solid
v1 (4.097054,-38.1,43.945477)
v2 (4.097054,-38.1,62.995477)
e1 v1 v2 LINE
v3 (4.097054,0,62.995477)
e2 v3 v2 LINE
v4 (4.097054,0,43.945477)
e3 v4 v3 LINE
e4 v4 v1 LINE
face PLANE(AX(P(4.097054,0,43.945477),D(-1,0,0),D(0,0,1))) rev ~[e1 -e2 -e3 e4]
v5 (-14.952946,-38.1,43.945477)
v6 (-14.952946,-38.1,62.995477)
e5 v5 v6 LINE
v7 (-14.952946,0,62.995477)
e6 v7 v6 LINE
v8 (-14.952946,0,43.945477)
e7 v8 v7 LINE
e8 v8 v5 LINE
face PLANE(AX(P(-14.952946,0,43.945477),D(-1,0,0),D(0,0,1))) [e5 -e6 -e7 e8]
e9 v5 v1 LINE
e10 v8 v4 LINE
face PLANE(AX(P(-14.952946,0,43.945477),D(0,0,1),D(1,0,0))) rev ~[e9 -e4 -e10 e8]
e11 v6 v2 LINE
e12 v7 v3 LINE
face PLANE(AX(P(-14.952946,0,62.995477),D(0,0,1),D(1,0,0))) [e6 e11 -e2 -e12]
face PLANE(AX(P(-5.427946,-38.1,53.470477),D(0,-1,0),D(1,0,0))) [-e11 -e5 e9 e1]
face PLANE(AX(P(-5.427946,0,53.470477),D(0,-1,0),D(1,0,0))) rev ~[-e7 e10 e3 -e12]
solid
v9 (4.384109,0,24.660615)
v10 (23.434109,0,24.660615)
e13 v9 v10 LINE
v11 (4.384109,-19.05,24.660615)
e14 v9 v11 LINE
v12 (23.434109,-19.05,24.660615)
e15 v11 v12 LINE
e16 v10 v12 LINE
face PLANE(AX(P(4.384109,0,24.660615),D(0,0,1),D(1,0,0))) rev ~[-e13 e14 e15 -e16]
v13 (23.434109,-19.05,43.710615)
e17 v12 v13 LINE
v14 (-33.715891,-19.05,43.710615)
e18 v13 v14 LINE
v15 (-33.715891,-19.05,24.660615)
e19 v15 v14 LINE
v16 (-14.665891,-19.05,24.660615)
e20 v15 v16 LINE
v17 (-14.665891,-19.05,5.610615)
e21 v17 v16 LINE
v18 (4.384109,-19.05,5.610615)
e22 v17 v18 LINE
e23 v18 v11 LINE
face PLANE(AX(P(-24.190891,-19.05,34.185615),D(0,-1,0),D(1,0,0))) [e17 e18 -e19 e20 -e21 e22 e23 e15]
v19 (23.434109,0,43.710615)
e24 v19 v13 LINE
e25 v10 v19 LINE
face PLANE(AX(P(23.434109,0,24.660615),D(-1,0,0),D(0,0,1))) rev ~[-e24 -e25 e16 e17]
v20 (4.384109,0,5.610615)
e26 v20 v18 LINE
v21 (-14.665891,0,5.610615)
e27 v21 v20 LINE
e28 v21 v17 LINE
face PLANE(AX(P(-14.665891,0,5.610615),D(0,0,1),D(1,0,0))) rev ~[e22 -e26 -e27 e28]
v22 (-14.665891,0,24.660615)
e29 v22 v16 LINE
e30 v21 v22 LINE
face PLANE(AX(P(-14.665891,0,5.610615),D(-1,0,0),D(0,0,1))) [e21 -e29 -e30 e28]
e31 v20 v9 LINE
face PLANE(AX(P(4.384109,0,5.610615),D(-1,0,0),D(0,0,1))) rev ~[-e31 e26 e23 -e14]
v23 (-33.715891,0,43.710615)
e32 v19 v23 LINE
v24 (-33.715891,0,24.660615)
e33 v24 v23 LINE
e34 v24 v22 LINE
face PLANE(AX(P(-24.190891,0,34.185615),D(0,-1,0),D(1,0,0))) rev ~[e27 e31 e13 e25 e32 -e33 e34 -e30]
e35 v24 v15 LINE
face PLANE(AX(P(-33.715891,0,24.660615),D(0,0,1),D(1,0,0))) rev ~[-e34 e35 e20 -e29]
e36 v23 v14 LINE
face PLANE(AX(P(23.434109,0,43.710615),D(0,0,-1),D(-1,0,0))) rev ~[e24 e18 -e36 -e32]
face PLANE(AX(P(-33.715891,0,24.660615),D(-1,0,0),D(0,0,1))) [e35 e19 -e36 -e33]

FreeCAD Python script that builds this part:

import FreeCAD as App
import Part
import Sketcher

V = App.Vector
Q = App.Units.Quantity

doc = App.newDocument("Part")
body = doc.addObject("PartDesign::Body", "Body")

sketch1 = body.newObject("Sketcher::SketchObject", "Sketch")
sketch1.AttachmentSupport = (doc.getObject("XZ_Plane"), [""])
sketch1.MapMode = "FlatFace"
sketch1.addGeometry(Part.LineSegment(V(-33.715891, 43.710615, 0), V(-33.715891, 24.660615, 0)), False)
sketch1.addGeometry(Part.LineSegment(V(-33.715891, 24.660615, 0), V(-14.665891, 24.660615, 0)), False)
sketch1.addGeometry(Part.LineSegment(V(-14.665891, 24.660615, 0), V(-14.665891, 5.610615, 0)), False)
sketch1.addGeometry(Part.LineSegment(V(-14.665891, 5.610615, 0), V(4.384109, 5.610615, 0)), False)
sketch1.addGeometry(Part.LineSegment(V(4.384109, 5.610615, 0), V(4.384109, 24.660615, 0)), False)
sketch1.addGeometry(Part.LineSegment(V(4.384109, 24.660615, 0), V(23.434109, 24.660615, 0)), False)
sketch1.addGeometry(Part.LineSegment(V(23.434109, 24.660615, 0), V(23.434109, 43.710615, 0)), False)
sketch1.addGeometry(Part.LineSegment(V(23.434109, 43.710615, 0), V(-33.715891, 43.710615, 0)), False)
sketch1.addConstraint(Sketcher.Constraint("Coincident", 0, 2, 1, 1))
sketch1.addConstraint(Sketcher.Constraint("Coincident", 1, 2, 2, 1))
sketch1.addConstraint(Sketcher.Constraint("Coincident", 2, 2, 3, 1))
sketch1.addConstraint(Sketcher.Constraint("Coincident", 3, 2, 4, 1))
sketch1.addConstraint(Sketcher.Constraint("Coincident", 4, 2, 5, 1))
sketch1.addConstraint(Sketcher.Constraint("Coincident", 5, 2, 6, 1))
sketch1.addConstraint(Sketcher.Constraint("Coincident", 6, 2, 7, 1))
sketch1.addConstraint(Sketcher.Constraint("Coincident", 7, 2, 0, 1))
sketch1.addConstraint(Sketcher.Constraint("Vertical", 0))
sketch1.addConstraint(Sketcher.Constraint("Horizontal", 1))
sketch1.addConstraint(Sketcher.Constraint("Vertical", 2))
sketch1.addConstraint(Sketcher.Constraint("Horizontal", 3))
sketch1.addConstraint(Sketcher.Constraint("Vertical", 4))
sketch1.addConstraint(Sketcher.Constraint("Horizontal", 5))
sketch1.addConstraint(Sketcher.Constraint("Vertical", 6))
sketch1.addConstraint(Sketcher.Constraint("Horizontal", 7))
sketch1.addConstraint(Sketcher.Constraint("Horizontal", 1, 2, 4, 2))
sketch1.addConstraint(Sketcher.Constraint("Equal", 1, 3))
sketch1.addConstraint(Sketcher.Constraint("Equal", 3, 5))
sketch1.addConstraint(Sketcher.Constraint("Equal", 5, 0))
sketch1.addConstraint(Sketcher.Constraint("Equal", 0, 2))
sketch1.addConstraint(Sketcher.Constraint("DistanceX", 1, 1, 1, 2, Q("0.75 in")))
sketch1.addConstraint(Sketcher.Constraint("DistanceX", 0, 2, -1, 1, 33.715891))
sketch1.addConstraint(Sketcher.Constraint("DistanceY", -1, 1, 0, 2, 24.660615))
pad1 = body.newObject("PartDesign::Pad", "Pad")
pad1.Profile = sketch1
pad1.Length = Q("0.75 in")
body2 = doc.addObject("PartDesign::Body", "Body001")

sketch2 = body2.newObject("Sketcher::SketchObject", "Sketch001")
sketch2.AttachmentSupport = (doc.getObject("XZ_Plane001"), [""])
sketch2.MapMode = "FlatFace"
sketch2.addGeometry(Part.LineSegment(V(-14.952946, 62.995477, 0), V(-14.952946, 43.945477, 0)), False)
sketch2.addGeometry(Part.LineSegment(V(-14.952946, 43.945477, 0), V(4.097054, 43.945477, 0)), False)
sketch2.addGeometry(Part.LineSegment(V(4.097054, 43.945477, 0), V(4.097054, 62.995477, 0)), False)
sketch2.addGeometry(Part.LineSegment(V(4.097054, 62.995477, 0), V(-14.952946, 62.995477, 0)), False)
sketch2.addConstraint(Sketcher.Constraint("Coincident", 0, 2, 1, 1))
sketch2.addConstraint(Sketcher.Constraint("Coincident", 1, 2, 2, 1))
sketch2.addConstraint(Sketcher.Constraint("Coincident", 2, 2, 3, 1))
sketch2.addConstraint(Sketcher.Constraint("Coincident", 3, 2, 0, 1))
sketch2.addConstraint(Sketcher.Constraint("Vertical", 0))
sketch2.addConstraint(Sketcher.Constraint("Horizontal", 1))
sketch2.addConstraint(Sketcher.Constraint("Vertical", 2))
sketch2.addConstraint(Sketcher.Constraint("Horizontal", 3))
sketch2.addConstraint(Sketcher.Constraint("Equal", 3, 0))
sketch2.addConstraint(Sketcher.Constraint("DistanceX", 1, 1, 1, 2, Q("0.75 in")))
sketch2.addConstraint(Sketcher.Constraint("DistanceX", 0, 2, -1, 1, 14.952946))
sketch2.addConstraint(Sketcher.Constraint("DistanceY", -1, 1, 0, 2, 43.945477))
pad2 = body2.newObject("PartDesign::Pad", "Pad001")
pad2.Profile = sketch2
pad2.Length = Q("1.5 in")

doc.recompute()
